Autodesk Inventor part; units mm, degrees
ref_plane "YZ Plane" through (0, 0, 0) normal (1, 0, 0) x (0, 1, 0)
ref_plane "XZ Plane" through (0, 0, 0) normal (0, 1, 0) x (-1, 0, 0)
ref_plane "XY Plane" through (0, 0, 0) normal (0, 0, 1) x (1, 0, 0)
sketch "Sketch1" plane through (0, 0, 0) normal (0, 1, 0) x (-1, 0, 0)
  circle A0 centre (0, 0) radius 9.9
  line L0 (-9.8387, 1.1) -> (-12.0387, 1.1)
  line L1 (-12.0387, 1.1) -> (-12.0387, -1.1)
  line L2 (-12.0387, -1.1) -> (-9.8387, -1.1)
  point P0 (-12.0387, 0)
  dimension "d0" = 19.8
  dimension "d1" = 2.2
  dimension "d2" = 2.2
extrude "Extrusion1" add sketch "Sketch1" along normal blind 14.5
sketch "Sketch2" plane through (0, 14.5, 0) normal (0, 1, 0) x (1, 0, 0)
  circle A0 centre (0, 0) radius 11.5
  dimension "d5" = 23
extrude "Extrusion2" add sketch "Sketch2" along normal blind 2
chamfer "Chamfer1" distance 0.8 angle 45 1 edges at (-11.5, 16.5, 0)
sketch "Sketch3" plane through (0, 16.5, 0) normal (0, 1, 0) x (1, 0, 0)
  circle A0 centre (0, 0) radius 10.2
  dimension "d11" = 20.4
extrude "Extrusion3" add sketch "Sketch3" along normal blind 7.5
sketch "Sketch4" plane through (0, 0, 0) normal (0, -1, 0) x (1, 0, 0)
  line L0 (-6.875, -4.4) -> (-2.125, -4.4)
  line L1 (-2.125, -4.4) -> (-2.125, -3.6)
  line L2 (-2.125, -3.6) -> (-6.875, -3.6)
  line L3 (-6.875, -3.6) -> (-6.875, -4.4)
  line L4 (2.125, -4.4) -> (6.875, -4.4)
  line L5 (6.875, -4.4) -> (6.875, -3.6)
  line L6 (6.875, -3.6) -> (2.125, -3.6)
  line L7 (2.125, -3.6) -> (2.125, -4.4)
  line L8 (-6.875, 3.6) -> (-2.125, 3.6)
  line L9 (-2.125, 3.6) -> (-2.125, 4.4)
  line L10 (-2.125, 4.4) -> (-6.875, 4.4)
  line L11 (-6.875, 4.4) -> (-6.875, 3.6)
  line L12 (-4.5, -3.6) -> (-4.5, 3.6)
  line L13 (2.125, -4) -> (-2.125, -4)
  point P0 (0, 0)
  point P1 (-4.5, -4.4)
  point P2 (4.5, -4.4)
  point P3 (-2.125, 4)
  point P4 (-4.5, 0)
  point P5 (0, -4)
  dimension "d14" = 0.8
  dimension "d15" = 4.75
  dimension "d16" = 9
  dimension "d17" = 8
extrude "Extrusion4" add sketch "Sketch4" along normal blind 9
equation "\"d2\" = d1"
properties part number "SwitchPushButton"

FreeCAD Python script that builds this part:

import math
import FreeCAD as App
import Part
import Sketcher

V = App.Vector


def edges_at(feature, points):
    """Names of the edges that pass closest to the given points."""
    edges = feature.Shape.Edges
    near = lambda p: min(range(len(edges)), key=lambda i: edges[i].distToShape(Part.Vertex(*p))[0])
    return sorted({f"Edge{near(p) + 1}" for p in points})


def add_polygon(sketch, points):
    """Adds a closed chain of lines whose ends are joined by coincident constraints."""
    first, n = sketch.GeometryCount, len(points)
    for a, b in zip(points, points[1:] + points[:1]):
        sketch.addGeometry(Part.LineSegment(App.Vector(*a, 0), App.Vector(*b, 0)), False)
    for i in range(n):
        sketch.addConstraint(Sketcher.Constraint("Coincident", first + i, 2, first + (i + 1) % n, 1))

doc = App.newDocument("Part")
body = doc.addObject("PartDesign::Body", "Body")

# Sketch on XZ plane
sketch1 = body.newObject("Sketcher::SketchObject", "Sketch")
sketch1.AttachmentSupport = (doc.getObject("XZ_Plane"), [""])
sketch1.MapMode = "FlatFace"
sketch1.addGeometry([
    Part.ArcOfCircle(Part.Circle(V(0, 0, 0), V(0, 0, 1), 9.9), math.radians(6.37937), math.radians(353.62063)),
    Part.LineSegment(V(9.8387, 1.1, 0), V(12.0387, 1.1, 0)),
    Part.LineSegment(V(12.0387, 1.1, 0), V(12.0387, -1.1, 0)),
    Part.LineSegment(V(12.0387, -1.1, 0), V(9.8387, -1.1, 0)),
], False)
sketch1.addConstraint([
    Sketcher.Constraint("Coincident", 0, 1, 1, 1),
    Sketcher.Constraint("Coincident", 1, 2, 2, 1),
    Sketcher.Constraint("Coincident", 2, 2, 3, 1),
    Sketcher.Constraint("Coincident", 3, 2, 0, 2),
    Sketcher.Constraint("Horizontal", 1),
    Sketcher.Constraint("Vertical", 2),
    Sketcher.Constraint("Horizontal", 3),
    Sketcher.Constraint("Coincident", 0, 3, -1, 1),
    Sketcher.Constraint("Vertical", 0, 1, 3, 2),
    Sketcher.Constraint("Equal", 3, 2),
    Sketcher.Constraint("Radius", 0, 9.9),
    Sketcher.Constraint("DistanceX", 1, 1, 1, 2, 2.2),
])
pad1 = body.newObject("PartDesign::Pad", "Pad")
pad1.Profile = sketch1
pad1.Length = 14.5
pad1.Reversed = True

# Sketch on XZ plane
sketch2 = body.newObject("Sketcher::SketchObject", "Sketch001")
sketch2.AttachmentSupport = (doc.getObject("XZ_Plane"), [""])
sketch2.MapMode = "FlatFace"
sketch2.AttachmentOffset = App.Placement(V(0, 0, -14.5), App.Rotation())
sketch2.addGeometry(Part.Circle(V(0, 0, 0), V(0, 0, 1), 11.5), False)
sketch2.addConstraint([
    Sketcher.Constraint("Coincident", 0, 3, -1, 1),
    Sketcher.Constraint("Diameter", 0, 23.0),
])
pad2 = body.newObject("PartDesign::Pad", "Pad001")
pad2.Profile = sketch2
pad2.Length = 2
pad2.Reversed = True
doc.recompute()

chamfer = body.newObject("PartDesign::Chamfer", "Chamfer")
chamfer.Base = (pad2, edges_at(pad2, [(-11.5, 16.5, 0)]))
chamfer.Size = 0.8

# Sketch on XZ plane
sketch3 = body.newObject("Sketcher::SketchObject", "Sketch002")
sketch3.AttachmentSupport = (doc.getObject("XZ_Plane"), [""])
sketch3.MapMode = "FlatFace"
sketch3.AttachmentOffset = App.Placement(V(0, 0, -16.5), App.Rotation())
sketch3.addGeometry(Part.Circle(V(0, 0, 0), V(0, 0, 1), 10.2), False)
sketch3.addConstraint([
    Sketcher.Constraint("Coincident", 0, 3, -1, 1),
    Sketcher.Constraint("Diameter", 0, 20.4),
])
pad3 = body.newObject("PartDesign::Pad", "Pad002")
pad3.Profile = sketch3
pad3.Length = 7.5
pad3.Reversed = True

# Sketch on XZ plane
sketch4 = body.newObject("Sketcher::SketchObject", "Sketch003")
sketch4.AttachmentSupport = (doc.getObject("XZ_Plane"), [""])
sketch4.MapMode = "FlatFace"
add_polygon(sketch4, [(-6.875, -3.6), (-6.875, -4.4), (-2.125, -4.4), (-2.125, -3.6)])  # lines 0-3
add_polygon(sketch4, [(-6.875, 3.6), (-2.125, 3.6), (-2.125, 4.4), (-6.875, 4.4)])  # lines 4-7
add_polygon(sketch4, [(2.125, -3.6), (2.125, -4.4), (6.875, -4.4), (6.875, -3.6)])  # lines 8-11
sketch4.addConstraint([
    Sketcher.Constraint("Vertical", 0),
    Sketcher.Constraint("Horizontal", 1),
    Sketcher.Constraint("Vertical", 2),
    Sketcher.Constraint("Horizontal", 3),
    Sketcher.Constraint("Horizontal", 4),
    Sketcher.Constraint("Vertical", 5),
    Sketcher.Constraint("Horizontal", 6),
    Sketcher.Constraint("Vertical", 7),
    Sketcher.Constraint("Vertical", 8),
    Sketcher.Constraint("Horizontal", 9),
    Sketcher.Constraint("Vertical", 10),
    Sketcher.Constraint("Horizontal", 11),
    Sketcher.Constraint("Symmetric", 5, 2, 8, 2, -1, 1),
    Sketcher.Constraint("Symmetric", 7, 2, 10, 2, -1, 1),
    Sketcher.Constraint("Symmetric", 1, 2, 8, 2, -2),
    Sketcher.Constraint("Symmetric", 3, 2, 10, 2, -2),
    Sketcher.Constraint("DistanceY", 0, 2, 0, 1, 0.8),
    Sketcher.Constraint("DistanceY", 1, 2, 4, 2, 8.0),
    Sketcher.Constraint("DistanceX", 0, 2, 8, 2, 9.0),
    Sketcher.Constraint("DistanceX", 1, 1, 1, 2, 4.75),
])
pad4 = body.newObject("PartDesign::Pad", "Pad003")
pad4.Profile = sketch4
pad4.Length = 9

doc.recompute()
